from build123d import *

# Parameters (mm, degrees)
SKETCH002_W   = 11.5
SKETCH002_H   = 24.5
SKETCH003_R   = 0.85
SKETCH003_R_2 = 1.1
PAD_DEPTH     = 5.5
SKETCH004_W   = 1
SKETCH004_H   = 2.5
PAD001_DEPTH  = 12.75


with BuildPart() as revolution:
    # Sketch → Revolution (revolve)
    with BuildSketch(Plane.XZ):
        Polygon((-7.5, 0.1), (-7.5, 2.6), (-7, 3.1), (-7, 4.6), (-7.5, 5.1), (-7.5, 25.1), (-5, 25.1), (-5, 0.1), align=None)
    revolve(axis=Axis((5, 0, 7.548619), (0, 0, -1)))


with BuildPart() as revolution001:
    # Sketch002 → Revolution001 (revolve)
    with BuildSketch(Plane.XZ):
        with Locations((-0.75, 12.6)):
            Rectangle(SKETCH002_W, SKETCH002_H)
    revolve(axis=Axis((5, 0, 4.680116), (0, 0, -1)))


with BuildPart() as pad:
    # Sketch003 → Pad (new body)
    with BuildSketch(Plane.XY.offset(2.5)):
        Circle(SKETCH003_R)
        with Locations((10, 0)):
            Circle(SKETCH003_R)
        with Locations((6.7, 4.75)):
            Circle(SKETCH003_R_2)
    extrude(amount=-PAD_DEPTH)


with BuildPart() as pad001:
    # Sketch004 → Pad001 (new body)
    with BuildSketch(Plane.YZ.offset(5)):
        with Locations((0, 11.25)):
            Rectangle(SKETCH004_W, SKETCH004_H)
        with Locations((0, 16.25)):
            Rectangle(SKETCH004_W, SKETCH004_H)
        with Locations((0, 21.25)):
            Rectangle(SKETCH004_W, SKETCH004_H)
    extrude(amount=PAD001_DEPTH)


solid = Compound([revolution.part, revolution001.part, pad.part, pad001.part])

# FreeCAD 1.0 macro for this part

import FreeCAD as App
import Part
import Sketcher
Q = App.Units.Quantity


def add_polygon(sketch, points):
    """Adds a closed chain of lines whose ends are joined by coincident constraints."""
    first, n = sketch.GeometryCount, len(points)
    for a, b in zip(points, points[1:] + points[:1]):
        sketch.addGeometry(Part.LineSegment(App.Vector(*a, 0), App.Vector(*b, 0)), False)
    for i in range(n):
        sketch.addConstraint(Sketcher.Constraint("Coincident", first + i, 2, first + (i + 1) % n, 1))

doc = App.newDocument("Part")
params = doc.addObject("Spreadsheet::Sheet", "Params")
for row, (alias, value) in enumerate([
    ("sketch1_height", "25 mm"),
    ("sketch1_height2", "20 mm"),
    ("sketch1_width", "2.5 mm"),
    ("sketch1_height3", "1.5 mm"),
    ("revolution_angle", "360 deg"),
    ("sketch2_width", "11.5 mm"),
    ("sketch2_height", "24.5 mm"),
    ("revolution2_angle", "360 deg"),
    ("sketch3_diameter", "1.7 mm"),
    ("sketch3_diameter2", "2.2 mm"),
    ("pad1_length", "5.5 mm"),
    ("sketch4_width", "1 mm"),
    ("sketch4_height", "2.5 mm"),
    ("pad2_length", "12.75 mm"),
], start=1):
    params.set(f"A{row}", alias)
    params.set(f"B{row}", "=" + value)
    params.setAlias(f"B{row}", alias)

body = doc.addObject("PartDesign::Body", "Body")

# Sketch on XZ plane
sketch1 = body.newObject("Sketcher::SketchObject", "Sketch")
sketch1.AttachmentSupport = (doc.getObject("XZ_Plane"), [""])
sketch1.MapMode = "FlatFace"
add_polygon(sketch1, [(-7.5, 2.6), (-7.5, 0.1), (-5, 0.1), (-5, 25.1), (-7.5, 25.1), (-7.5, 5.1), (-7, 4.6), (-7, 3.1)])  # lines 0-7
sketch1.addGeometry(Part.LineSegment(App.Vector(5, 25.1, 0), App.Vector(5, 0.1, 0)), True)  # axis
sketch1.addConstraint([
    Sketcher.Constraint("Vertical", 0),
    Sketcher.Constraint("Horizontal", 1),
    Sketcher.Constraint("Vertical", 2),
    Sketcher.Constraint("Horizontal", 3),
    Sketcher.Constraint("Vertical", 4),
    Sketcher.Constraint("Vertical", 6),
    Sketcher.Constraint("Vertical", 8),
    Sketcher.Constraint("Symmetric", 2, 2, 8, 1, -2),
    Sketcher.Constraint("Perpendicular", 5, 7),
    Sketcher.Constraint("Horizontal", 1, 2, 8, 2),
    Sketcher.Constraint("Vertical", 0, 2, 3, 2),
    Sketcher.Constraint("Equal", 3, 0),
    Sketcher.Constraint("Equal", 5, 7),
    Sketcher.Constraint("DistanceY", 2, 1, 2, 2, Q("25 mm")),
    Sketcher.Constraint("DistanceY", 4, 2, 4, 1, Q("20 mm")),
    Sketcher.Constraint("DistanceX", 1, 1, 1, 2, Q("2.5 mm")),
    Sketcher.Constraint("DistanceY", 6, 2, 6, 1, Q("1.5 mm")),
    Sketcher.Constraint("DistanceX", 1, 2, -1, 1, Q("5 mm")),
    Sketcher.Constraint("DistanceY", -1, 1, 0, 2, Q("0.1 mm")),
])
sketch1.setExpression("Constraints[21]", "Params.sketch1_height")
sketch1.setExpression("Constraints[22]", "Params.sketch1_height2")
sketch1.setExpression("Constraints[23]", "Params.sketch1_width")
sketch1.setExpression("Constraints[24]", "Params.sketch1_height3")
revolution = body.newObject("PartDesign::Revolution", "Revolution")
revolution.Profile = sketch1
revolution.ReferenceAxis = (sketch1, ["Axis0"])
revolution.setExpression("Angle", "Params.revolution_angle")
body2 = doc.addObject("PartDesign::Body", "Body001")

# Sketch on XZ plane
sketch2 = body2.newObject("Sketcher::SketchObject", "Sketch001")
sketch2.AttachmentSupport = (doc.getObject("XZ_Plane001"), [""])
sketch2.MapMode = "FlatFace"
add_polygon(sketch2, [(-6, 25), (-6, 0), (5, 0), (5, 25)])  # lines 0-3
sketch2.addGeometry(Part.LineSegment(App.Vector(5, 25, 0), App.Vector(5, 0, 0)), True)  # axis
sketch2.addConstraint([
    Sketcher.Constraint("Vertical", 0),
    Sketcher.Constraint("Horizontal", 1),
    Sketcher.Constraint("Vertical", 2),
    Sketcher.Constraint("Horizontal", 3),
    Sketcher.Constraint("Vertical", 4),
    Sketcher.Constraint("Coincident", 4, 1, 2, 2),
    Sketcher.Constraint("Horizontal", 0, 2, 4, 2),
    Sketcher.Constraint("DistanceX", 1, 1, 1, 2, Q("11.5 mm")),
    Sketcher.Constraint("DistanceY", 0, 2, 0, 1, Q("24.5 mm")),
    Sketcher.Constraint("DistanceX", -1, 1, 1, 2, Q("5 mm")),
    Sketcher.Constraint("DistanceY", -1, 1, 0, 2, Q("0.35 mm")),
])
sketch2.setExpression("Constraints[11]", "Params.sketch2_width")
sketch2.setExpression("Constraints[12]", "Params.sketch2_height")
revolution2 = body2.newObject("PartDesign::Revolution", "Revolution001")
revolution2.Profile = sketch2
revolution2.ReferenceAxis = (sketch2, ["Axis0"])
revolution2.setExpression("Angle", "Params.revolution2_angle")
body3 = doc.addObject("PartDesign::Body", "Body002")
body3.AllowCompound = True

# Sketch on XY plane
sketch3 = body3.newObject("Sketcher::SketchObject", "Sketch002")
sketch3.AttachmentSupport = (doc.getObject("XY_Plane002"), [""])
sketch3.MapMode = "FlatFace"
sketch3.AttachmentOffset = App.Placement(App.Vector(0, 0, 2.5), App.Rotation())
sketch3.addGeometry([
    Part.Circle(App.Vector(0, 0, 0), App.Vector(0, 0, 1), 0.8),
    Part.Circle(App.Vector(10, 0, 0), App.Vector(0, 0, 1), 0.8),
    Part.Circle(App.Vector(6.7, 4.8, 0), App.Vector(0, 0, 1), 1.1),
], False)
sketch3.addConstraint([
    Sketcher.Constraint("Coincident", 0, 3, -1, 1),
    Sketcher.Constraint("Equal", 0, 1),
    Sketcher.Constraint("PointOnObject", 1, 3, -1),
    Sketcher.Constraint("Diameter", 0, Q("1.7 mm")),
    Sketcher.Constraint("Diameter", 2, Q("2.2 mm")),
    Sketcher.Constraint("DistanceX", -1, 1, 1, 3, Q("10 mm")),
    Sketcher.Constraint("DistanceX", -1, 1, 2, 3, Q("6.7 mm")),
    Sketcher.Constraint("DistanceY", -1, 1, 2, 3, Q("4.75 mm")),
])
sketch3.setExpression("Constraints[3]", "Params.sketch3_diameter")
sketch3.setExpression("Constraints[4]", "Params.sketch3_diameter2")
pad1 = body3.newObject("PartDesign::Pad", "Pad")
pad1.Profile = sketch3
pad1.setExpression("Length", "Params.pad1_length")
pad1.Reversed = True
body4 = doc.addObject("PartDesign::Body", "Body003")
body4.AllowCompound = True

# Sketch on YZ plane
sketch4 = body4.newObject("Sketcher::SketchObject", "Sketch003")
sketch4.AttachmentSupport = (doc.getObject("YZ_Plane003"), [""])
sketch4.MapMode = "FlatFace"
sketch4.AttachmentOffset = App.Placement(App.Vector(0, 0, 5), App.Rotation())
add_polygon(sketch4, [(-0.5, 12.5), (-0.5, 10), (0.5, 10), (0.5, 12.5)])  # lines 0-3
add_polygon(sketch4, [(-0.5, 17.5), (-0.5, 15), (0.5, 15), (0.5, 17.5)])  # lines 4-7
add_polygon(sketch4, [(-0.5, 22.5), (-0.5, 20), (0.5, 20), (0.5, 22.5)])  # lines 8-11
sketch4.addConstraint([
    Sketcher.Constraint("Vertical", 0),
    Sketcher.Constraint("Horizontal", 1),
    Sketcher.Constraint("Vertical", 2),
    Sketcher.Constraint("Horizontal", 3),
    Sketcher.Constraint("Vertical", 4),
    Sketcher.Constraint("Horizontal", 5),
    Sketcher.Constraint("Vertical", 6),
    Sketcher.Constraint("Horizontal", 7),
    Sketcher.Constraint("Vertical", 8),
    Sketcher.Constraint("Horizontal", 9),
    Sketcher.Constraint("Vertical", 10),
    Sketcher.Constraint("Horizontal", 11),
    Sketcher.Constraint("Vertical", 3, 2, 4, 2),
    Sketcher.Constraint("Vertical", 2, 2, 5, 2),
    Sketcher.Constraint("Vertical", 7, 2, 8, 2),
    Sketcher.Constraint("Vertical", 6, 2, 9, 2),
    Sketcher.Constraint("Equal", 2, 4),
    Sketcher.Constraint("Equal", 6, 8),
    Sketcher.Constraint("DistanceX", 1, 1, 1, 2, Q("1 mm")),
    Sketcher.Constraint("DistanceY", 0, 2, 0, 1, Q("2.5 mm")),
    Sketcher.Constraint("DistanceY", -1, 1, 0, 2, Q("10 mm")),
    Sketcher.Constraint("DistanceY", -1, 1, 4, 2, Q("15 mm")),
    Sketcher.Constraint("DistanceY", -1, 1, 8, 2, Q("20 mm")),
    Sketcher.Constraint("DistanceX", 0, 2, -1, 1, Q("0.5 mm")),
])
sketch4.setExpression("Constraints[30]", "Params.sketch4_width")
sketch4.setExpression("Constraints[31]", "Params.sketch4_height")
pad2 = body4.newObject("PartDesign::Pad", "Pad001")
pad2.Profile = sketch4
pad2.setExpression("Length", "Params.pad2_length")

doc.recompute()
